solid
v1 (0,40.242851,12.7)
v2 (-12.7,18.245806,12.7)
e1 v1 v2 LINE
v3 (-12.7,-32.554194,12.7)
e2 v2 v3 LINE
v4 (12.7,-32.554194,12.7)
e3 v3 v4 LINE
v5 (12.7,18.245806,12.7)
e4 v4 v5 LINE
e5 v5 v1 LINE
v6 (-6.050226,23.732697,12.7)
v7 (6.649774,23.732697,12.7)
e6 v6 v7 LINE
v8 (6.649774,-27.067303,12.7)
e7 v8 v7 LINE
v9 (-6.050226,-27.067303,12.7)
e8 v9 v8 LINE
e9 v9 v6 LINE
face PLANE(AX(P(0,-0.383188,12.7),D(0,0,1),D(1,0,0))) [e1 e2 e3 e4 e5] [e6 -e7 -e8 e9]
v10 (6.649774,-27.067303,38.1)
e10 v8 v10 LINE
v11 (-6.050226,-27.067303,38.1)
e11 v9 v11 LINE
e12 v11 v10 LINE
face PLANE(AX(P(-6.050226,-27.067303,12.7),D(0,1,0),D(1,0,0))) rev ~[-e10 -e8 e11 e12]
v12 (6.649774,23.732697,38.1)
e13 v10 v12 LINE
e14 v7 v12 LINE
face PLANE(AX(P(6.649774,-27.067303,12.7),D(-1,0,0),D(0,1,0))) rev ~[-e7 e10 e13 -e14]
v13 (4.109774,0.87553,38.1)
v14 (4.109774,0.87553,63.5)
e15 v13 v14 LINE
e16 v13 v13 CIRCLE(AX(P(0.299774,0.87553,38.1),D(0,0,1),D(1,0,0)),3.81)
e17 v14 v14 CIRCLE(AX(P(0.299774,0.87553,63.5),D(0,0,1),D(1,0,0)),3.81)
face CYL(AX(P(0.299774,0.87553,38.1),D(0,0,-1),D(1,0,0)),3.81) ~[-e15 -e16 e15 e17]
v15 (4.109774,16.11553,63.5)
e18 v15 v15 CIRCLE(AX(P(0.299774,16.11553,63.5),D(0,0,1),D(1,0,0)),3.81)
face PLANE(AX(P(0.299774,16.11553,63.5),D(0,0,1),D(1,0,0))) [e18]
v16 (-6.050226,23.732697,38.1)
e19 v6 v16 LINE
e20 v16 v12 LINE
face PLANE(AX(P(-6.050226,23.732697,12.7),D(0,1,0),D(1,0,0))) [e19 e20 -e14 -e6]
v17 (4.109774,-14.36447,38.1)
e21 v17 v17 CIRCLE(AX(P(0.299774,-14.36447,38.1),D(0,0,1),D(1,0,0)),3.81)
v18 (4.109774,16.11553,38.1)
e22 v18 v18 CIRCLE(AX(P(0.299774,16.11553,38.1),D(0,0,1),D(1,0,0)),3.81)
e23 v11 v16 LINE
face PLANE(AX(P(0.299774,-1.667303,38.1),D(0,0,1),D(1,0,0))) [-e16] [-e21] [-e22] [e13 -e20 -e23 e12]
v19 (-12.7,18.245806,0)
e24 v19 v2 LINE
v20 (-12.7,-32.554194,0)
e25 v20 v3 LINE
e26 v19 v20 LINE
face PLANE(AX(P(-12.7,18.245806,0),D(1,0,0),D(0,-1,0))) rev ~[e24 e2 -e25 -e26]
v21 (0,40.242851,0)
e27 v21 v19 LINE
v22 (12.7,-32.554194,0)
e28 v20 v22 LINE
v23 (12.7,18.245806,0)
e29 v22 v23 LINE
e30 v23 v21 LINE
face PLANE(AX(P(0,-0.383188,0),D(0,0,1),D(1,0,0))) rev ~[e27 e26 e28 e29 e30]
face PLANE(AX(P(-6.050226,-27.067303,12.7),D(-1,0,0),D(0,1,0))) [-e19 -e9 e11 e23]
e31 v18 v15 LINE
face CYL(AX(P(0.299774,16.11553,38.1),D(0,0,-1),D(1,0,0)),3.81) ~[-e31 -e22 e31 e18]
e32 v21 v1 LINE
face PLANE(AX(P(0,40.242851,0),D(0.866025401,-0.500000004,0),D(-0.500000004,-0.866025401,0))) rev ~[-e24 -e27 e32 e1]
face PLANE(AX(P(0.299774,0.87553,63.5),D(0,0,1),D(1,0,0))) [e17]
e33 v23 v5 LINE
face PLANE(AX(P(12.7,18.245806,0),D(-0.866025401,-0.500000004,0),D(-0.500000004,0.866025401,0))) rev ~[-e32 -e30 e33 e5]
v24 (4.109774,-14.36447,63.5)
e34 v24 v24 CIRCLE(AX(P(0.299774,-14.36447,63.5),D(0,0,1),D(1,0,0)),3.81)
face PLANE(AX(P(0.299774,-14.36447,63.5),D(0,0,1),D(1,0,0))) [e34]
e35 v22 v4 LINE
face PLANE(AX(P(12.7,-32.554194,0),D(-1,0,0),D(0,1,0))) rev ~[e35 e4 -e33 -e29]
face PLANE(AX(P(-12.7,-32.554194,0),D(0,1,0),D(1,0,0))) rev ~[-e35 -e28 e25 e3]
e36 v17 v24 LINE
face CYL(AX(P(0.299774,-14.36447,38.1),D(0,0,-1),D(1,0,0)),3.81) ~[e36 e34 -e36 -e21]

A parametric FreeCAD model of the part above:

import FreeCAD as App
import Part
import Sketcher
from FreeCAD import Vector
Q = App.Units.Quantity


def add_polygon(sketch, points):
    """Adds a closed chain of lines whose ends are joined by coincident constraints."""
    first, n = sketch.GeometryCount, len(points)
    for a, b in zip(points, points[1:] + points[:1]):
        sketch.addGeometry(Part.LineSegment(App.Vector(*a, 0), App.Vector(*b, 0)), False)
    for i in range(n):
        sketch.addConstraint(Sketcher.Constraint("Coincident", first + i, 2, first + (i + 1) % n, 1))

doc = App.newDocument("Part")
body = doc.addObject("PartDesign::Body", "Body")

sketch1 = body.newObject("Sketcher::SketchObject", "Sketch")
sketch1.AttachmentSupport = (doc.getObject("XY_Plane"), [""])
sketch1.MapMode = "FlatFace"
add_polygon(sketch1, [(-13, 18), (-13, -33), (13, -33), (13, 18), (0, 40)])
sketch1.addConstraint([
    Sketcher.Constraint("Vertical", 0),
    Sketcher.Constraint("Horizontal", 1),
    Sketcher.Constraint("Vertical", 2),
    Sketcher.Constraint("Symmetric", 2, 2, 4, 2, -2),
    Sketcher.Constraint("PointOnObject", 3, 2, -2),
    Sketcher.Constraint("DistanceX", 1, 1, 1, 2, Q("1 in")),
    Sketcher.Constraint("DistanceY", 0, 2, 0, 1, Q("2 in")),
    Sketcher.Constraint("Distance", 3, Q("1 in")),
    Sketcher.Constraint("DistanceY", -1, 1, 3, 2, Q("40.242851 mm")),
])
pad1 = body.newObject("PartDesign::Pad", "Pad")
pad1.Profile = sketch1
pad1.Length = Q("0.5 in")

sketch2 = body.newObject("Sketcher::SketchObject", "Sketch001")
sketch2.AttachmentSupport = (doc.getObject("XY_Plane"), [""])
sketch2.MapMode = "FlatFace"
sketch2.AttachmentOffset = App.Placement(Vector(0, 0, 0.5 * 25.4), App.Rotation())
add_polygon(sketch2, [(-6, 24), (-6, -27), (7, -27), (7, 24)])
sketch2.addConstraint([
    Sketcher.Constraint("Vertical", 0),
    Sketcher.Constraint("Horizontal", 1),
    Sketcher.Constraint("Vertical", 2),
    Sketcher.Constraint("Horizontal", 3),
    Sketcher.Constraint("DistanceY", 0, 2, 0, 1, Q("2 in")),
    Sketcher.Constraint("DistanceX", 1, 1, 1, 2, Q("0.5 in")),
    Sketcher.Constraint("DistanceX", 0, 2, -1, 1, Q("6.050226 mm")),
    Sketcher.Constraint("DistanceY", 0, 2, -1, 1, Q("27.067303 mm")),
])
pad2 = body.newObject("PartDesign::Pad", "Pad001")
pad2.Profile = sketch2
pad2.Length = Q("1 in")

sketch3 = body.newObject("Sketcher::SketchObject", "Sketch002")
sketch3.AttachmentSupport = (doc.getObject("XY_Plane"), [""])
sketch3.MapMode = "FlatFace"
sketch3.AttachmentOffset = App.Placement(Vector(0, 0, 1.5 * 25.4), App.Rotation())
sketch3.addGeometry([
    Part.Circle(Vector(0.3, 16.1, 0), Vector(0, 0, 1), 3.8),
    Part.Circle(Vector(0.3, 0.9, 0), Vector(0, 0, 1), 3.8),
    Part.Circle(Vector(0.3, -14.4, 0), Vector(0, 0, 1), 3.8),
], False)
sketch3.addConstraint([
    Sketcher.Constraint("Equal", 0, 1),
    Sketcher.Constraint("Equal", 1, 2),
    Sketcher.Constraint("Vertical", 0, 3, 1, 3),
    Sketcher.Constraint("Vertical", 1, 3, 2, 3),
    Sketcher.Constraint("Diameter", 0, Q("0.3 in")),
    Sketcher.Constraint("DistanceY", 1, 3, 0, 3, Q("0.6 in")),
    Sketcher.Constraint("DistanceY", 2, 3, 1, 3, Q("0.6 in")),
    Sketcher.Constraint("DistanceY", -1, 1, 0, 3, Q("16.11553 mm")),
    Sketcher.Constraint("DistanceX", -1, 1, 0, 3, Q("0.299774 mm")),
])
pad3 = body.newObject("PartDesign::Pad", "Pad002")
pad3.Profile = sketch3
pad3.Length = Q("1 in")

doc.recompute()
